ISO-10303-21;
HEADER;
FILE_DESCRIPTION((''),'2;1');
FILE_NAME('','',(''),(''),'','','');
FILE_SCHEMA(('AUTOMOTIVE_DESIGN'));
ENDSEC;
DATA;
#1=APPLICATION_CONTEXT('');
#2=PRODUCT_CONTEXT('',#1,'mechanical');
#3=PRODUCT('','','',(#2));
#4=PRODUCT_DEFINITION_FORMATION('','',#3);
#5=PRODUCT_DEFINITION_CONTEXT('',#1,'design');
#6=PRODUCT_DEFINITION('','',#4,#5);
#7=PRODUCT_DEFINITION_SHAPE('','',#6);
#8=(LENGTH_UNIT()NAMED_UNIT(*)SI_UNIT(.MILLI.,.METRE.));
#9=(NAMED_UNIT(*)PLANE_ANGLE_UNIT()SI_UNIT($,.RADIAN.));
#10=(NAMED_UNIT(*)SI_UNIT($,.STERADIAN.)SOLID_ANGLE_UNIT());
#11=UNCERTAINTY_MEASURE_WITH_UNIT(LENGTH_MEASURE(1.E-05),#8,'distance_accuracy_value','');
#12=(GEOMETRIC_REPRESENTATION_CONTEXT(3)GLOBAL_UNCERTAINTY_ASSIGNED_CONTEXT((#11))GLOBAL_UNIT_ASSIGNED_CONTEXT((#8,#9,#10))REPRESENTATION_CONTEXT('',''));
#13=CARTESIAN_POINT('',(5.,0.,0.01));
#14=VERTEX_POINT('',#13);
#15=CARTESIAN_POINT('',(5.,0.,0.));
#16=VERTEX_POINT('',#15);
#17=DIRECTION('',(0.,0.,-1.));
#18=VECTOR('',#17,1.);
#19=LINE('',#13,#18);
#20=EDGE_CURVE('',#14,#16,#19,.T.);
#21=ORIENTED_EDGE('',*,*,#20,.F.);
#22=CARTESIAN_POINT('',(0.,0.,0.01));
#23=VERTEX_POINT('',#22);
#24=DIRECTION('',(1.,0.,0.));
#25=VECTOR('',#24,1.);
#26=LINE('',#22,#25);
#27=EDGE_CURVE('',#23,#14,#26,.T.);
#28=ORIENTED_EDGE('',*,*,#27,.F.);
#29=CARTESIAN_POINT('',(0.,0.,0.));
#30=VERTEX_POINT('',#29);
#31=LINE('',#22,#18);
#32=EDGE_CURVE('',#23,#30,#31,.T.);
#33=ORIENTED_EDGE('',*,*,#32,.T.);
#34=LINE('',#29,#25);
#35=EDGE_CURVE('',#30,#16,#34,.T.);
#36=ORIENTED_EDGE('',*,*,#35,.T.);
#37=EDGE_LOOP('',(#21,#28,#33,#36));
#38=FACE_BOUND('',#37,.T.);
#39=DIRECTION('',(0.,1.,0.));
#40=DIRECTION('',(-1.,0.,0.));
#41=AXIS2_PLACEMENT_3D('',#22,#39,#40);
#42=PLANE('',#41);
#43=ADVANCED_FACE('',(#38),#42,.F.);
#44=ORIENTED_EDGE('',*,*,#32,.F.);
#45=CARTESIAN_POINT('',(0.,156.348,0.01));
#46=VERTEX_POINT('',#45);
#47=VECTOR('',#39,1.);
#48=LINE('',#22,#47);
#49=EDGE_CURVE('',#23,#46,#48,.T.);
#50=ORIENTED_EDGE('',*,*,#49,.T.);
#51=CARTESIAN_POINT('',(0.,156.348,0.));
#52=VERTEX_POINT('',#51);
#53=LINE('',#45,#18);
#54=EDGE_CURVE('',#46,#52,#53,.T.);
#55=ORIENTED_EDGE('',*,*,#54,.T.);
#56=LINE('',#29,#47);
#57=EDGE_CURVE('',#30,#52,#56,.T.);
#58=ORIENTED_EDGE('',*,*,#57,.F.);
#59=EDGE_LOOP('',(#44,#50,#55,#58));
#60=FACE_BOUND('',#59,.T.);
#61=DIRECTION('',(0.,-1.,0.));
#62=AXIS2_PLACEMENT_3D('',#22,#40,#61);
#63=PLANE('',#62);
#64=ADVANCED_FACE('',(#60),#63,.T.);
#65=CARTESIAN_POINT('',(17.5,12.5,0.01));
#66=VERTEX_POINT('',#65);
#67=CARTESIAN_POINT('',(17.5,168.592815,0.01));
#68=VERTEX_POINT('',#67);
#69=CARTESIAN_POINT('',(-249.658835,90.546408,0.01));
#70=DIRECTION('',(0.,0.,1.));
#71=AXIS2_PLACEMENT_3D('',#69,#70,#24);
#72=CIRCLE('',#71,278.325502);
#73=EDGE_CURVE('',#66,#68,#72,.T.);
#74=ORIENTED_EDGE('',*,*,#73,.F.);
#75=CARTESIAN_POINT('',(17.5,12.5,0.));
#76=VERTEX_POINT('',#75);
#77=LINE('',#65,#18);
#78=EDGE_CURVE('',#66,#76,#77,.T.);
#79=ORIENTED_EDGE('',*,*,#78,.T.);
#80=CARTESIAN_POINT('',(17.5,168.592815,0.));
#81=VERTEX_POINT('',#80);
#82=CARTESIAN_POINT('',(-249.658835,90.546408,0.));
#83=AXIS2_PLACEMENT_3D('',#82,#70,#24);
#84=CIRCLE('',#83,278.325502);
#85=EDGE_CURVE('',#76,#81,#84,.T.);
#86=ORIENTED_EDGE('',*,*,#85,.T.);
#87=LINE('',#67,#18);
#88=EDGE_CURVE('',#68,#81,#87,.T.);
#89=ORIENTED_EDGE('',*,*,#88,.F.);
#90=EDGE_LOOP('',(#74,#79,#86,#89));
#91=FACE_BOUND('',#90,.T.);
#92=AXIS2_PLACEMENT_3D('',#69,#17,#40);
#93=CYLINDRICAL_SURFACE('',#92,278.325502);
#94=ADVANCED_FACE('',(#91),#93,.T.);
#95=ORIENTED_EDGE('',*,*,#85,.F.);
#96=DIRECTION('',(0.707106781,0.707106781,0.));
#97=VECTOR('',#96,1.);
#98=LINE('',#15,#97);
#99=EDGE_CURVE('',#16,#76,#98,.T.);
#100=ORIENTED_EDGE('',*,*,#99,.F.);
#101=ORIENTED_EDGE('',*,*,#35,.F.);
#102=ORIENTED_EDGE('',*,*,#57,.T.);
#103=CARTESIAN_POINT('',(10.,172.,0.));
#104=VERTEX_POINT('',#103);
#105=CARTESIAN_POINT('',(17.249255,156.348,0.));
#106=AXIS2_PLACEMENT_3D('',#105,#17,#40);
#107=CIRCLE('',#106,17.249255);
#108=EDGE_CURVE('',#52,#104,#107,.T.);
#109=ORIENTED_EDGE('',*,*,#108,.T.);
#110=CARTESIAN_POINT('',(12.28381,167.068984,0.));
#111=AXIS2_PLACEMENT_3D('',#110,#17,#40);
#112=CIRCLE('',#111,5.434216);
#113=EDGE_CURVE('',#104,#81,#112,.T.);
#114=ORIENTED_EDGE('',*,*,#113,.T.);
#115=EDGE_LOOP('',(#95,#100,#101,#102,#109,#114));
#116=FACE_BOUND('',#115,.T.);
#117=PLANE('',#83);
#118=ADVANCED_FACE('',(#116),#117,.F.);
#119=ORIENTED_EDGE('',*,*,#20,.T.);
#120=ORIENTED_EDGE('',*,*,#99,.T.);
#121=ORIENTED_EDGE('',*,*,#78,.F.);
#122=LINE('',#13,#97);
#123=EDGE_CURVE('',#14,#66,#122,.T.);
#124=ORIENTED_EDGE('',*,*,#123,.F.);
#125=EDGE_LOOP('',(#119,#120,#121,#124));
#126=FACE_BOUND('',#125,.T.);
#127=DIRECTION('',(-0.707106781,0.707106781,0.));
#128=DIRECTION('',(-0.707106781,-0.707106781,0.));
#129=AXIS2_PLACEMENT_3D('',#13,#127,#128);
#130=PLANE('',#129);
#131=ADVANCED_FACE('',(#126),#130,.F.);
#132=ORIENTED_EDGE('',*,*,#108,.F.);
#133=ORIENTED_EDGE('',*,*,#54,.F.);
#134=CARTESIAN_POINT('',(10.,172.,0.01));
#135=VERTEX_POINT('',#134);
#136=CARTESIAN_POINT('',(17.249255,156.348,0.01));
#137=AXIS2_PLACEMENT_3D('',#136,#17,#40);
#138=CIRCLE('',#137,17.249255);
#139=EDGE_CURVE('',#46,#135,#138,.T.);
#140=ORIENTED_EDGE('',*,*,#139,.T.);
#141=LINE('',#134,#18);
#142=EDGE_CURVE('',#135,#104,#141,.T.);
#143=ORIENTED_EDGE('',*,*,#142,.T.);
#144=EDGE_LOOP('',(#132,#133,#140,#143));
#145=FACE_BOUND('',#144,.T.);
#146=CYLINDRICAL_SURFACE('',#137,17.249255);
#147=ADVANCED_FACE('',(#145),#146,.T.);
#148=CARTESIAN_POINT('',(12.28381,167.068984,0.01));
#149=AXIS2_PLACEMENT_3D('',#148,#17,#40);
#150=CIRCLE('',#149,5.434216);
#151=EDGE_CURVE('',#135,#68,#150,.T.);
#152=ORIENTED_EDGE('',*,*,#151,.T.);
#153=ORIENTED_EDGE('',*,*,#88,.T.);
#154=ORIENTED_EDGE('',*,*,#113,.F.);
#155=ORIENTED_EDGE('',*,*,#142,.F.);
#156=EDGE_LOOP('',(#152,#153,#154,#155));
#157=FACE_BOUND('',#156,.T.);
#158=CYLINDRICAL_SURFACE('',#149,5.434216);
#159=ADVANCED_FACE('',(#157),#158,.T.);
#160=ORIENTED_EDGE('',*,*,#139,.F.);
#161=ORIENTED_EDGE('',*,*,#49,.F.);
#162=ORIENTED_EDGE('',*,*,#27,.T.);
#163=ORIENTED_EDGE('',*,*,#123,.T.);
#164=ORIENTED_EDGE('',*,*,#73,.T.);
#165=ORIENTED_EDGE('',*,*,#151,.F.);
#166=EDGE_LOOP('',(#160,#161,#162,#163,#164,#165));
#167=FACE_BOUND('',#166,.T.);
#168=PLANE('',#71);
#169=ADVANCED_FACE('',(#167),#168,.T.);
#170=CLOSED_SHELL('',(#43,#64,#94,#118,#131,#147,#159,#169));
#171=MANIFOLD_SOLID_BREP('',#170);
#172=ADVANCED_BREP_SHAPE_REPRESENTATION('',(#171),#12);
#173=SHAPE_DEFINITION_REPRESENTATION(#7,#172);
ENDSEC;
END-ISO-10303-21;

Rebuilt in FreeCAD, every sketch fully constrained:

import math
import FreeCAD as App
import Part
import Sketcher
from FreeCAD import Vector
Q = App.Units.Quantity

doc = App.newDocument("Part")
body = doc.addObject("PartDesign::Body", "Body")

# Sketch on XY plane
sketch1 = body.newObject("Sketcher::SketchObject", "Sketch")
sketch1.AttachmentSupport = (doc.getObject("XY_Plane"), [""])
sketch1.MapMode = "FlatFace"
sketch1.addGeometry([
    Part.LineSegment(Vector(0, 156.348, 0), Vector(0, 0, 0)),  # 0
    Part.LineSegment(Vector(0, 0, 0), Vector(5, 0, 0)),  # 1
    Part.LineSegment(Vector(5, 0, 0), Vector(17.5, 12.5, 0)),  # 2
    Part.ArcOfCircle(Part.Circle(Vector(-249.658835, 90.546408, 0), Vector(0, 0, 1), 278.325502), math.radians(-16.284924), math.radians(16.284924)),  # 3
    Part.ArcOfCircle(Part.Circle(Vector(12.28381, 167.068984, 0), Vector(0, 0, 1), 5.434216), math.radians(16.284924), math.radians(114.851308)),  # 4
    Part.ArcOfCircle(Part.Circle(Vector(17.249255, 156.348, 0), Vector(0, 0, 1), 17.249255), math.radians(114.851308), math.radians(180)),  # 5
], False)
sketch1.addConstraint([
    Sketcher.Constraint("Coincident", 0, 2, 1, 1),
    Sketcher.Constraint("Coincident", 1, 2, 2, 1),
    Sketcher.Constraint("Coincident", 2, 2, 3, 1),
    Sketcher.Constraint("Tangent", 3, 2, 4, 1),
    Sketcher.Constraint("Tangent", 4, 2, 5, 1),
    Sketcher.Constraint("Tangent", 5, 2, 0, 1),
    Sketcher.Constraint("Vertical", 0),
    Sketcher.Constraint("Horizontal", 1),
    Sketcher.Constraint("Coincident", 0, 2, -1, 1),
    Sketcher.Constraint("Vertical", 2, 2, 3, 2),
    Sketcher.Constraint("DistanceX", 1, 1, 1, 2, Q("5 mm")),
    Sketcher.Constraint("Angle", 2, Q("45 deg")),
    Sketcher.Constraint("DistanceX", -1, 1, 4, 2, Q("10 mm")),
    Sketcher.Constraint("DistanceY", -1, 1, 4, 2, Q("172 mm")),
    Sketcher.Constraint("DistanceX", -1, 1, 2, 2, Q("17.5 mm")),
    Sketcher.Constraint("Radius", 3, Q("278.325502 mm")),
    Sketcher.Constraint("DistanceY", 0, 2, 0, 1, Q("156.348 mm")),
])
pad1 = body.newObject("PartDesign::Pad", "Pad")
pad1.Profile = sketch1
pad1.Length = 0.01

doc.recompute()
